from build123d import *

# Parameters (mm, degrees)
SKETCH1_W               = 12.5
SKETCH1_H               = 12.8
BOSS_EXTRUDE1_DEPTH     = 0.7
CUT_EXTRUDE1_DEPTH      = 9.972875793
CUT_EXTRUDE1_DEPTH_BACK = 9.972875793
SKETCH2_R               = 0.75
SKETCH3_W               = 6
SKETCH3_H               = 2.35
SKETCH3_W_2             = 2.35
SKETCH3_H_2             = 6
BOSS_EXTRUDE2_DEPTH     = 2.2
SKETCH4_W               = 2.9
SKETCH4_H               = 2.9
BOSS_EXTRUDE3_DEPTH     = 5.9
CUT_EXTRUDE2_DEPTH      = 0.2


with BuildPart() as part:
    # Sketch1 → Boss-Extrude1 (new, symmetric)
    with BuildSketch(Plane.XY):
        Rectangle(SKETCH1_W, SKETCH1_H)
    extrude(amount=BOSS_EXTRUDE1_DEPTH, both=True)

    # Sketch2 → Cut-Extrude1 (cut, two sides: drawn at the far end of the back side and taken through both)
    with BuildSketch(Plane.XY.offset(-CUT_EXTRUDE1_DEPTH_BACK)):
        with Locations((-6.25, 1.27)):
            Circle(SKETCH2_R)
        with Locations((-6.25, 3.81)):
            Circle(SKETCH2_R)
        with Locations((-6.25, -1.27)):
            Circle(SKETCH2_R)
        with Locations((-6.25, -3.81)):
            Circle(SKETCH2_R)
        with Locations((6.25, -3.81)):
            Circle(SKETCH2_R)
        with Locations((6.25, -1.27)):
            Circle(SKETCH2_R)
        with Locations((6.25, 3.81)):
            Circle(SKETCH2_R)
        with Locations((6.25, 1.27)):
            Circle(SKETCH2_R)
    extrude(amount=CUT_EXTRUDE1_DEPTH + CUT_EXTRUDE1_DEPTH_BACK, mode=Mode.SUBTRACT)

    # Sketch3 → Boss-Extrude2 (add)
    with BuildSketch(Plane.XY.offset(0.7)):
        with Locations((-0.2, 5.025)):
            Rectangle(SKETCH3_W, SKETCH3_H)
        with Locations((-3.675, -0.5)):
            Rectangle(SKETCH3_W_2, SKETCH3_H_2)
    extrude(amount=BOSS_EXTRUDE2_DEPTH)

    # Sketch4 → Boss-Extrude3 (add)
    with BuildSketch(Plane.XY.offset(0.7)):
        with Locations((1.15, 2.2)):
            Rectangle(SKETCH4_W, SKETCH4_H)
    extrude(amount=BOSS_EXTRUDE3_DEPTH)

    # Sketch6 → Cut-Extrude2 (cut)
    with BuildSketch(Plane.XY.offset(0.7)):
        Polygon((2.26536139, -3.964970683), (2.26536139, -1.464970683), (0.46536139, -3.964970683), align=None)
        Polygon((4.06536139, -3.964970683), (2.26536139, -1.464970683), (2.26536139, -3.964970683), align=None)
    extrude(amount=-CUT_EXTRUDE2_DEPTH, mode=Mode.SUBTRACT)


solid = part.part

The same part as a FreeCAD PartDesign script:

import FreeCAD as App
import Part
import Sketcher
from FreeCAD import Vector
Q = App.Units.Quantity

doc = App.newDocument("Part")
body = doc.addObject("PartDesign::Body", "Body")

# Sketch on XY plane
sketch1 = body.newObject("Sketcher::SketchObject", "Sketch")
sketch1.AttachmentSupport = (doc.getObject("XY_Plane"), [""])
sketch1.MapMode = "FlatFace"
sketch1.addGeometry([
    Part.LineSegment(Vector(-6, 6, 0), Vector(-6, -6, 0)),
    Part.LineSegment(Vector(-6, -6, 0), Vector(6, -6, 0)),
    Part.LineSegment(Vector(6, -6, 0), Vector(6, 6, 0)),
    Part.LineSegment(Vector(6, 6, 0), Vector(-6, 6, 0)),
], False)
sketch1.addConstraint([
    Sketcher.Constraint("Coincident", 0, 2, 1, 1),
    Sketcher.Constraint("Coincident", 1, 2, 2, 1),
    Sketcher.Constraint("Coincident", 2, 2, 3, 1),
    Sketcher.Constraint("Coincident", 3, 2, 0, 1),
    Sketcher.Constraint("Vertical", 0),
    Sketcher.Constraint("Horizontal", 1),
    Sketcher.Constraint("Vertical", 2),
    Sketcher.Constraint("Horizontal", 3),
    Sketcher.Constraint("Symmetric", 0, 2, 2, 2, -1, 1),
    Sketcher.Constraint("DistanceX", 1, 1, 1, 2, Q("12.5 mm")),
    Sketcher.Constraint("DistanceY", 0, 2, 0, 1, Q("12.8 mm")),
])
pad1 = body.newObject("PartDesign::Pad", "Pad")
pad1.Profile = sketch1
pad1.Length = 1.4
pad1.Midplane = True

# Sketch on XY plane
sketch2 = body.newObject("Sketcher::SketchObject", "Sketch001")
sketch2.AttachmentSupport = (doc.getObject("XY_Plane"), [""])
sketch2.MapMode = "FlatFace"
sketch2.addGeometry([
    Part.Circle(Vector(-6.2, 1.3, 0), Vector(0, 0, 1), 0.8),  # 0
    Part.Circle(Vector(-6.2, 3.8, 0), Vector(0, 0, 1), 0.8),  # 1
    Part.Circle(Vector(-6.2, -1.3, 0), Vector(0, 0, 1), 0.8),  # 2
    Part.Circle(Vector(-6.2, -3.8, 0), Vector(0, 0, 1), 0.8),  # 3
    Part.Circle(Vector(6.2, -3.8, 0), Vector(0, 0, 1), 0.8),  # 4
    Part.Circle(Vector(6.2, -1.3, 0), Vector(0, 0, 1), 0.8),  # 5
    Part.Circle(Vector(6.2, 3.8, 0), Vector(0, 0, 1), 0.8),  # 6
    Part.Circle(Vector(6.2, 1.3, 0), Vector(0, 0, 1), 0.8),  # 7
], False)
sketch2.addConstraint([
    Sketcher.Constraint("Equal", 0, 1),
    Sketcher.Constraint("Equal", 1, 2),
    Sketcher.Constraint("Equal", 2, 3),
    Sketcher.Constraint("Equal", 3, 4),
    Sketcher.Constraint("Equal", 4, 5),
    Sketcher.Constraint("Equal", 5, 6),
    Sketcher.Constraint("Equal", 6, 7),
    Sketcher.Constraint("Symmetric", 1, 3, 4, 3, -1, 1),
    Sketcher.Constraint("Symmetric", 0, 3, 5, 3, -1, 1),
    Sketcher.Constraint("Symmetric", 3, 3, 6, 3, -1, 1),
    Sketcher.Constraint("Symmetric", 2, 3, 7, 3, -1, 1),
    Sketcher.Constraint("Symmetric", 3, 3, 4, 3, -2),
    Sketcher.Constraint("Symmetric", 2, 3, 5, 3, -2),
    Sketcher.Constraint("Vertical", 0, 3, 1, 3),
    Sketcher.Constraint("Diameter", 0, Q("1.5 mm")),
    Sketcher.Constraint("DistanceX", 3, 3, 4, 3, Q("12.5 mm")),
    Sketcher.Constraint("DistanceY", -1, 1, 0, 3, Q("1.27 mm")),
    Sketcher.Constraint("DistanceY", -1, 1, 1, 3, Q("3.81 mm")),
])
pocket1 = body.newObject("PartDesign::Pocket", "Pocket")
pocket1.Profile = sketch2
pocket1.Type = "ThroughAll"
pocket1.Midplane = True

# Sketch on XY plane
sketch3 = body.newObject("Sketcher::SketchObject", "Sketch002")
sketch3.AttachmentSupport = (doc.getObject("XY_Plane"), [""])
sketch3.MapMode = "FlatFace"
sketch3.AttachmentOffset = App.Placement(Vector(0, 0, 0.7), App.Rotation())
sketch3.addGeometry([
    Part.LineSegment(Vector(-3.2, 6.2, 0), Vector(-3.2, 3.9, 0)),  # 0
    Part.LineSegment(Vector(-3.2, 3.9, 0), Vector(2.8, 3.9, 0)),  # 1
    Part.LineSegment(Vector(2.8, 3.9, 0), Vector(2.8, 6.2, 0)),  # 2
    Part.LineSegment(Vector(2.8, 6.2, 0), Vector(-3.2, 6.2, 0)),  # 3
    Part.LineSegment(Vector(-4.8, 2.5, 0), Vector(-4.8, -3.5, 0)),  # 4
    Part.LineSegment(Vector(-4.8, -3.5, 0), Vector(-2.5, -3.5, 0)),  # 5
    Part.LineSegment(Vector(-2.5, -3.5, 0), Vector(-2.5, 2.5, 0)),  # 6
    Part.LineSegment(Vector(-2.5, 2.5, 0), Vector(-4.8, 2.5, 0)),  # 7
], False)
sketch3.addConstraint([
    Sketcher.Constraint("Coincident", 0, 2, 1, 1),
    Sketcher.Constraint("Coincident", 1, 2, 2, 1),
    Sketcher.Constraint("Coincident", 2, 2, 3, 1),
    Sketcher.Constraint("Coincident", 3, 2, 0, 1),
    Sketcher.Constraint("Coincident", 4, 2, 5, 1),
    Sketcher.Constraint("Coincident", 5, 2, 6, 1),
    Sketcher.Constraint("Coincident", 6, 2, 7, 1),
    Sketcher.Constraint("Coincident", 7, 2, 4, 1),
    Sketcher.Constraint("Vertical", 0),
    Sketcher.Constraint("Horizontal", 1),
    Sketcher.Constraint("Vertical", 2),
    Sketcher.Constraint("Horizontal", 3),
    Sketcher.Constraint("Vertical", 4),
    Sketcher.Constraint("Horizontal", 5),
    Sketcher.Constraint("Vertical", 6),
    Sketcher.Constraint("Horizontal", 7),
    Sketcher.Constraint("Equal", 7, 0),
    Sketcher.Constraint("Equal", 3, 4),
    Sketcher.Constraint("DistanceX", 1, 1, 1, 2, Q("6 mm")),
    Sketcher.Constraint("DistanceX", 5, 1, 5, 2, Q("2.35 mm")),
    Sketcher.Constraint("DistanceX", 0, 2, -1, 1, Q("3.2 mm")),
    Sketcher.Constraint("DistanceY", -1, 1, 2, 2, Q("6.2 mm")),
    Sketcher.Constraint("DistanceY", 4, 2, -1, 1, Q("3.5 mm")),
    Sketcher.Constraint("DistanceX", 5, 2, -1, 1, Q("2.5 mm")),
])
pad2 = body.newObject("PartDesign::Pad", "Pad001")
pad2.Profile = sketch3
pad2.Length = 2.2

# Sketch on XY plane
sketch4 = body.newObject("Sketcher::SketchObject", "Sketch003")
sketch4.AttachmentSupport = (doc.getObject("XY_Plane"), [""])
sketch4.MapMode = "FlatFace"
sketch4.AttachmentOffset = App.Placement(Vector(0, 0, 0.7), App.Rotation())
sketch4.addGeometry([
    Part.LineSegment(Vector(-0.3, 3.6, 0), Vector(-0.3, 0.8, 0)),
    Part.LineSegment(Vector(-0.3, 0.8, 0), Vector(2.6, 0.8, 0)),
    Part.LineSegment(Vector(2.6, 0.8, 0), Vector(2.6, 3.6, 0)),
    Part.LineSegment(Vector(2.6, 3.6, 0), Vector(-0.3, 3.6, 0)),
], False)
sketch4.addConstraint([
    Sketcher.Constraint("Coincident", 0, 2, 1, 1),
    Sketcher.Constraint("Coincident", 1, 2, 2, 1),
    Sketcher.Constraint("Coincident", 2, 2, 3, 1),
    Sketcher.Constraint("Coincident", 3, 2, 0, 1),
    Sketcher.Constraint("Vertical", 0),
    Sketcher.Constraint("Horizontal", 1),
    Sketcher.Constraint("Vertical", 2),
    Sketcher.Constraint("Horizontal", 3),
    Sketcher.Constraint("Equal", 3, 0),
    Sketcher.Constraint("DistanceX", 1, 1, 1, 2, Q("2.9 mm")),
    Sketcher.Constraint("DistanceX", 0, 2, -1, 1, Q("0.3 mm")),
    Sketcher.Constraint("DistanceY", -1, 1, 0, 2, Q("0.75 mm")),
])
pad3 = body.newObject("PartDesign::Pad", "Pad002")
pad3.Profile = sketch4
pad3.Length = 5.9

# Sketch on XY plane
sketch5 = body.newObject("Sketcher::SketchObject", "Sketch004")
sketch5.AttachmentSupport = (doc.getObject("XY_Plane"), [""])
sketch5.MapMode = "FlatFace"
sketch5.AttachmentOffset = App.Placement(Vector(0, 0, 0.7), App.Rotation())
sketch5.addGeometry([
    Part.LineSegment(Vector(2.3, -1.5, 0), Vector(0.5, -4, 0)),
    Part.LineSegment(Vector(0.5, -4, 0), Vector(4.1, -4, 0)),
    Part.LineSegment(Vector(4.1, -4, 0), Vector(2.3, -1.5, 0)),
], False)
sketch5.addConstraint([
    Sketcher.Constraint("Coincident", 0, 2, 1, 1),
    Sketcher.Constraint("Coincident", 1, 2, 2, 1),
    Sketcher.Constraint("Coincident", 2, 2, 0, 1),
    Sketcher.Constraint("Horizontal", 1),
    Sketcher.Constraint("Equal", 0, 2),
    Sketcher.Constraint("DistanceX", 1, 1, 1, 2, Q("3.6 mm")),
    Sketcher.Constraint("DistanceY", 0, 2, 2, 2, Q("2.5 mm")),
    Sketcher.Constraint("DistanceX", -1, 1, 0, 2, Q("0.465361 mm")),
    Sketcher.Constraint("DistanceY", 0, 2, -1, 1, Q("3.964971 mm")),
])
pocket2 = body.newObject("PartDesign::Pocket", "Pocket001")
pocket2.Profile = sketch5
pocket2.Length = 0.2

doc.recompute()
